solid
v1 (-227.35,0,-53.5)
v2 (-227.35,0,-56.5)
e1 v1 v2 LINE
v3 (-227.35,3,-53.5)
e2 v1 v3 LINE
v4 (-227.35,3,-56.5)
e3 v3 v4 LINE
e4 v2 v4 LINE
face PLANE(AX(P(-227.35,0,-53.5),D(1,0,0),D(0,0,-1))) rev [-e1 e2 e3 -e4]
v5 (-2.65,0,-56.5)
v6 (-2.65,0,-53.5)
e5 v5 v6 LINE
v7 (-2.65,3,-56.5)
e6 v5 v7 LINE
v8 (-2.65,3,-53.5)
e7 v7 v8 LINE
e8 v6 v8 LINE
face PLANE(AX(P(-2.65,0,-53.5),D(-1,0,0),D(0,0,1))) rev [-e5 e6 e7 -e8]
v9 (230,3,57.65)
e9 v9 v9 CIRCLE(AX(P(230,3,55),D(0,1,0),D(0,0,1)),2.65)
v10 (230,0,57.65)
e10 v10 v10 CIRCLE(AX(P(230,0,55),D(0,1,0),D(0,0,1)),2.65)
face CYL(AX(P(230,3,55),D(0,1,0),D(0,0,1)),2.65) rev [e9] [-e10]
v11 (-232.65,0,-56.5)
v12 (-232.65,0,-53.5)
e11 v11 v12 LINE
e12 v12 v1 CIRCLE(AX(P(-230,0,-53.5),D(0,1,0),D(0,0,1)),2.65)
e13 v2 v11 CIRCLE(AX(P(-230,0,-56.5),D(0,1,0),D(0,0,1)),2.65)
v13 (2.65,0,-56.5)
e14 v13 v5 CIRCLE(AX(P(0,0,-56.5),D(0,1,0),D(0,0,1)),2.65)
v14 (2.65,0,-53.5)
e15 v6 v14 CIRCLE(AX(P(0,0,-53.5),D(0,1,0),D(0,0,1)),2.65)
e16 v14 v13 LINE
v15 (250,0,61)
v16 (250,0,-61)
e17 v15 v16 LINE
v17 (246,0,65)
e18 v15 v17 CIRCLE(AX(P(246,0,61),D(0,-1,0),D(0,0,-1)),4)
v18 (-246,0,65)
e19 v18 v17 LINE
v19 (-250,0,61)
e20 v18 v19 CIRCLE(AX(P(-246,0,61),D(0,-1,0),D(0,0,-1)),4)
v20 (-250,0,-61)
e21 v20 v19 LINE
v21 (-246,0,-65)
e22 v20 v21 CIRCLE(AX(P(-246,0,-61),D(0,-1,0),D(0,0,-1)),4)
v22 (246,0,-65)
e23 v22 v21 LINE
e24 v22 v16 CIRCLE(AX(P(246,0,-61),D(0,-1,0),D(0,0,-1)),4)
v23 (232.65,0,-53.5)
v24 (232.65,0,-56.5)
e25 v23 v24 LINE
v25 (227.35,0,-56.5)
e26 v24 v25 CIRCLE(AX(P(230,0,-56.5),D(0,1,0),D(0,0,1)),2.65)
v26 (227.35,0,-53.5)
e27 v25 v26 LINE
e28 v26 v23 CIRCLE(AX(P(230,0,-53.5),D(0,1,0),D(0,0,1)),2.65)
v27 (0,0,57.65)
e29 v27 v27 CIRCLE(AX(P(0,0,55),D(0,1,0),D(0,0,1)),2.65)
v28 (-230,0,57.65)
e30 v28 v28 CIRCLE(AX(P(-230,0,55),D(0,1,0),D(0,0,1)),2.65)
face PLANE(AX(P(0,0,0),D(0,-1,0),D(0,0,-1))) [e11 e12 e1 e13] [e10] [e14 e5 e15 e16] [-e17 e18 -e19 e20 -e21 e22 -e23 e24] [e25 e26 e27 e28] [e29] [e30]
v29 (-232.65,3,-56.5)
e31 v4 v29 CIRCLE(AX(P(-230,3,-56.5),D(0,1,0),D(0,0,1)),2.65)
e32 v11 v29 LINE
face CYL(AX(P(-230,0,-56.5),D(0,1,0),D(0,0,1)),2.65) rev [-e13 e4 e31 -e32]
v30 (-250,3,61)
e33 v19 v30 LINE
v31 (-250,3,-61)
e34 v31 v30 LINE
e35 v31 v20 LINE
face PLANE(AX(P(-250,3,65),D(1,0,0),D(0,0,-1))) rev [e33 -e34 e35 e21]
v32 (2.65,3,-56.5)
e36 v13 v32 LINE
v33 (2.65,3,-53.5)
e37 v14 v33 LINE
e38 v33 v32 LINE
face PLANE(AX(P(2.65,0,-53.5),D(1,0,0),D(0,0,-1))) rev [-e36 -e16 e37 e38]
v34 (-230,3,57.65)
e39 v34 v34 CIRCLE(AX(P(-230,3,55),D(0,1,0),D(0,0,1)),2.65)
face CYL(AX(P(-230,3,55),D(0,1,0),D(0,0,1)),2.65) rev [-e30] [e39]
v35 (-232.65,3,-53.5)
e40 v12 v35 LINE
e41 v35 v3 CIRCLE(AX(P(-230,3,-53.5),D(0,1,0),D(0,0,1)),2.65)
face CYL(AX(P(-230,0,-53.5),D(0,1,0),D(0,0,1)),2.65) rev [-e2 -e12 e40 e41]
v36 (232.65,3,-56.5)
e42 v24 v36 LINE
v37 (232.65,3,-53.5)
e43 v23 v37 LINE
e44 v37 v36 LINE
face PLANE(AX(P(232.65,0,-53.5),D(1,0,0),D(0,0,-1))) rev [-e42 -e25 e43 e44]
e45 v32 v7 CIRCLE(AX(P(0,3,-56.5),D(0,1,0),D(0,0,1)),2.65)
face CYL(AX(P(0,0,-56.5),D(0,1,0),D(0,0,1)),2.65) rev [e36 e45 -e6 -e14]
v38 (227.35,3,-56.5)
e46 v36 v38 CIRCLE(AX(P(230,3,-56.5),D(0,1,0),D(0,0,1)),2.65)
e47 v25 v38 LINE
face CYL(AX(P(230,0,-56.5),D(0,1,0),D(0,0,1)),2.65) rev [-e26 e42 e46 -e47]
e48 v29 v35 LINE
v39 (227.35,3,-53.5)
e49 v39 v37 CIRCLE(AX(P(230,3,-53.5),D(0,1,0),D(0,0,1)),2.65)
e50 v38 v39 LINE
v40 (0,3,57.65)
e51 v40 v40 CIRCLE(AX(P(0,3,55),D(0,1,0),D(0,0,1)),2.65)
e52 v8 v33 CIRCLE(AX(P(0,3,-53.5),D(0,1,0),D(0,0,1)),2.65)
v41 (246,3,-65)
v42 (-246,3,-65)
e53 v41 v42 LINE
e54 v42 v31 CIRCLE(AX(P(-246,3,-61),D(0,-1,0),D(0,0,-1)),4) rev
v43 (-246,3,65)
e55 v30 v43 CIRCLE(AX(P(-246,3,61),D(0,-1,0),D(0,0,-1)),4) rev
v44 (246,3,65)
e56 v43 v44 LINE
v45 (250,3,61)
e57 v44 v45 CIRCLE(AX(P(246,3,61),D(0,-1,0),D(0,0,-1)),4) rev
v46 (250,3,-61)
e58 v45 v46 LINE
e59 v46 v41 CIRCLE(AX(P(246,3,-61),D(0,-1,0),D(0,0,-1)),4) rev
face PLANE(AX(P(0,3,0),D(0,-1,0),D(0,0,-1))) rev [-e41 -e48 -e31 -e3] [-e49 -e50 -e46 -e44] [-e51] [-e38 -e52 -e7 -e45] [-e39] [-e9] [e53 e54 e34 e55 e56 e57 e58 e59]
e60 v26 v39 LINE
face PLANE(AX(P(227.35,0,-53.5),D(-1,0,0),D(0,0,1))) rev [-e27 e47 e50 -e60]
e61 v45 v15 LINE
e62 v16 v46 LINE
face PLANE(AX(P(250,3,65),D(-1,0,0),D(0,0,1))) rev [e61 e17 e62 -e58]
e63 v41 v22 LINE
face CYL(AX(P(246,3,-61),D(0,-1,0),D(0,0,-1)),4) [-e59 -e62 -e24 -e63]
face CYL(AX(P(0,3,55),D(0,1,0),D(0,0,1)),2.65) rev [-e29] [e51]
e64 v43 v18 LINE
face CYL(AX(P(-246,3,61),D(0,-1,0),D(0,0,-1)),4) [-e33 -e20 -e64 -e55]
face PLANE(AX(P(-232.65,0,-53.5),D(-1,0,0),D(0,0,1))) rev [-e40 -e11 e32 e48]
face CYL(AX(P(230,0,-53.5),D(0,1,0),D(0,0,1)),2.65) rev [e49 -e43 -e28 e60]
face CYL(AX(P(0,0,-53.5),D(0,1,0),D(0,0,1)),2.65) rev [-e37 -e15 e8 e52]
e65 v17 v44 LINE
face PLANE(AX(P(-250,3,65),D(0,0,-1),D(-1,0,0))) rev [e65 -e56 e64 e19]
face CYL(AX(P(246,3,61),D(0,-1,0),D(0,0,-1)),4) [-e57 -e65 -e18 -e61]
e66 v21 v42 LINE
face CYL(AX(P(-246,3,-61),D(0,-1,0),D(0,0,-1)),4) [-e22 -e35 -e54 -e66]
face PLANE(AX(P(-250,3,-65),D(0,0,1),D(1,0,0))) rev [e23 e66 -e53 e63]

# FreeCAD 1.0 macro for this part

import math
import FreeCAD as App
import Part
import Sketcher
from FreeCAD import Vector


def edges_at(feature, points):
    """Names of the edges that pass closest to the given points."""
    edges = feature.Shape.Edges
    near = lambda p: min(range(len(edges)), key=lambda i: edges[i].distToShape(Part.Vertex(*p))[0])
    return sorted({f"Edge{near(p) + 1}" for p in points})


def add_polygon(sketch, points):
    """Adds a closed chain of lines whose ends are joined by coincident constraints."""
    first, n = sketch.GeometryCount, len(points)
    for a, b in zip(points, points[1:] + points[:1]):
        sketch.addGeometry(Part.LineSegment(App.Vector(*a, 0), App.Vector(*b, 0)), False)
    for i in range(n):
        sketch.addConstraint(Sketcher.Constraint("Coincident", first + i, 2, first + (i + 1) % n, 1))

doc = App.newDocument("Part")
body = doc.addObject("PartDesign::Body", "Body")

# Sketch on XZ plane
sketch1 = body.newObject("Sketcher::SketchObject", "Sketch")
sketch1.AttachmentSupport = (doc.getObject("XZ_Plane"), [""])
sketch1.MapMode = "FlatFace"
add_polygon(sketch1, [(-250, -65), (-250, 65), (250, 65), (250, -65)])  # lines 0-3
sketch1.addConstraint(Sketcher.Constraint("Vertical", 0))
sketch1.addConstraint(Sketcher.Constraint("Horizontal", 1))
sketch1.addConstraint(Sketcher.Constraint("Vertical", 2))
sketch1.addConstraint(Sketcher.Constraint("Horizontal", 3))
sketch1.addConstraint(Sketcher.Constraint("Symmetric", 0, 2, 2, 2, -1, 1))
sketch1.addConstraint(Sketcher.Constraint("DistanceX", 1, 1, 1, 2, 500.0))
sketch1.addConstraint(Sketcher.Constraint("DistanceY", 0, 1, 0, 2, 130.0))
pad1 = body.newObject("PartDesign::Pad", "Pad")
pad1.Profile = sketch1
pad1.Length = 3
pad1.Reversed = True
doc.recompute()

fillet = body.newObject("PartDesign::Fillet", "Fillet")
fillet.Base = (pad1, edges_at(pad1, [
    (250, 1.5, 65),
    (-250, 1.5, 65),
    (-250, 1.5, -65),
    (250, 1.5, -65),
]))
fillet.Radius = 4

# Sketch on XZ plane
sketch2 = body.newObject("Sketcher::SketchObject", "Sketch001")
sketch2.AttachmentSupport = (doc.getObject("XZ_Plane"), [""])
sketch2.MapMode = "FlatFace"
sketch2.AttachmentOffset = App.Placement(Vector(0, 0, -3), App.Rotation())
sketch2.addGeometry(Part.Circle(Vector(230, -55, 0), Vector(0, 0, 1), 2.6), False)
sketch2.addGeometry(Part.Circle(Vector(-230, 55, 0), Vector(0, 0, 1), 2.6), False)
sketch2.addGeometry(Part.Circle(Vector(-230, -55, 0), Vector(0, 0, 1), 2.6), False)
sketch2.addGeometry(Part.Circle(Vector(230, 55, 0), Vector(0, 0, 1), 2.6), False)
sketch2.addGeometry(Part.Circle(Vector(0, -55, 0), Vector(0, 0, 1), 2.6), False)
sketch2.addGeometry(Part.Circle(Vector(0, 55, 0), Vector(0, 0, 1), 2.6), False)
sketch2.addConstraint(Sketcher.Constraint("Equal", 0, 1))
sketch2.addConstraint(Sketcher.Constraint("Equal", 1, 2))
sketch2.addConstraint(Sketcher.Constraint("Equal", 2, 3))
sketch2.addConstraint(Sketcher.Constraint("Equal", 3, 4))
sketch2.addConstraint(Sketcher.Constraint("Equal", 4, 5))
sketch2.addConstraint(Sketcher.Constraint("Symmetric", 0, 3, 1, 3, -1, 1))
sketch2.addConstraint(Sketcher.Constraint("Symmetric", 2, 3, 3, 3, -1, 1))
sketch2.addConstraint(Sketcher.Constraint("Symmetric", 4, 3, 5, 3, -1, 1))
sketch2.addConstraint(Sketcher.Constraint("Symmetric", 0, 3, 2, 3, -2))
sketch2.addConstraint(Sketcher.Constraint("PointOnObject", 4, 3, -2))
sketch2.addConstraint(Sketcher.Constraint("Horizontal", 2, 3, 4, 3))
sketch2.addConstraint(Sketcher.Constraint("Diameter", 0, 5.3))
sketch2.addConstraint(Sketcher.Constraint("DistanceX", -1, 1, 0, 3, 230.0))
sketch2.addConstraint(Sketcher.Constraint("DistanceY", 0, 3, -1, 1, 55.0))
doc.recompute()
hole = body.newObject("PartDesign::Hole", "Hole")
hole.Profile = sketch2
hole.ThreadType = "None"
hole.Diameter = 5.3
hole.DepthType = "ThroughAll"
hole.Reversed = True

# Sketch on XZ plane
sketch3 = body.newObject("Sketcher::SketchObject", "Sketch002")
sketch3.AttachmentSupport = (doc.getObject("XZ_Plane"), [""])
sketch3.MapMode = "FlatFace"
sketch3.AttachmentOffset = App.Placement(Vector(0, 0, -3), App.Rotation())
sketch3.addGeometry(Part.LineSegment(Vector(-232.7, -56.5, 0), Vector(-232.7, -53.5, 0)), False)
sketch3.addGeometry(Part.ArcOfCircle(Part.Circle(Vector(-230, -53.5, 0), Vector(0, 0, 1), 2.6), math.radians(0), math.radians(180)), False)
sketch3.addGeometry(Part.LineSegment(Vector(-227.3, -53.5, 0), Vector(-227.3, -56.5, 0)), False)
sketch3.addGeometry(Part.ArcOfCircle(Part.Circle(Vector(-230, -56.5, 0), Vector(0, 0, 1), 2.6), math.radians(180), math.radians(360)), False)
sketch3.addGeometry(Part.LineSegment(Vector(-2.6, -56.5, 0), Vector(-2.6, -53.5, 0)), False)
sketch3.addGeometry(Part.ArcOfCircle(Part.Circle(Vector(0, -53.5, 0), Vector(0, 0, 1), 2.6), math.radians(0), math.radians(180)), False)
sketch3.addGeometry(Part.LineSegment(Vector(2.6, -53.5, 0), Vector(2.6, -56.5, 0)), False)
sketch3.addGeometry(Part.ArcOfCircle(Part.Circle(Vector(0, -56.5, 0), Vector(0, 0, 1), 2.6), math.radians(180), math.radians(360)), False)
sketch3.addGeometry(Part.LineSegment(Vector(227.3, -56.5, 0), Vector(227.3, -53.5, 0)), False)
sketch3.addGeometry(Part.ArcOfCircle(Part.Circle(Vector(230, -53.5, 0), Vector(0, 0, 1), 2.6), math.radians(0), math.radians(180)), False)
sketch3.addGeometry(Part.LineSegment(Vector(232.7, -53.5, 0), Vector(232.7, -56.5, 0)), False)
sketch3.addGeometry(Part.ArcOfCircle(Part.Circle(Vector(230, -56.5, 0), Vector(0, 0, 1), 2.6), math.radians(180), math.radians(360)), False)
sketch3.addConstraint(Sketcher.Constraint("Tangent", 0, 2, 1, 2))
sketch3.addConstraint(Sketcher.Constraint("Tangent", 1, 1, 2, 1))
sketch3.addConstraint(Sketcher.Constraint("Tangent", 2, 2, 3, 2))
sketch3.addConstraint(Sketcher.Constraint("Tangent", 3, 1, 0, 1))
sketch3.addConstraint(Sketcher.Constraint("Tangent", 4, 2, 5, 2))
sketch3.addConstraint(Sketcher.Constraint("Tangent", 5, 1, 6, 1))
sketch3.addConstraint(Sketcher.Constraint("Tangent", 6, 2, 7, 2))
sketch3.addConstraint(Sketcher.Constraint("Tangent", 7, 1, 4, 1))
sketch3.addConstraint(Sketcher.Constraint("Tangent", 8, 2, 9, 2))
sketch3.addConstraint(Sketcher.Constraint("Tangent", 9, 1, 10, 1))
sketch3.addConstraint(Sketcher.Constraint("Tangent", 10, 2, 11, 2))
sketch3.addConstraint(Sketcher.Constraint("Tangent", 11, 1, 8, 1))
sketch3.addConstraint(Sketcher.Constraint("Vertical", 0))
sketch3.addConstraint(Sketcher.Constraint("Vertical", 2))
sketch3.addConstraint(Sketcher.Constraint("Vertical", 4))
sketch3.addConstraint(Sketcher.Constraint("Vertical", 6))
sketch3.addConstraint(Sketcher.Constraint("Vertical", 8))
sketch3.addConstraint(Sketcher.Constraint("Vertical", 10))
sketch3.addConstraint(Sketcher.Constraint("Equal", 3, 5))
sketch3.addConstraint(Sketcher.Constraint("Equal", 7, 9))
sketch3.addConstraint(Sketcher.Constraint("Symmetric", 1, 3, 9, 3, -2))
sketch3.addConstraint(Sketcher.Constraint("PointOnObject", 5, 3, -2))
sketch3.addConstraint(Sketcher.Constraint("Horizontal", 1, 3, 5, 3))
sketch3.addConstraint(Sketcher.Constraint("Horizontal", 3, 3, 7, 3))
sketch3.addConstraint(Sketcher.Constraint("Horizontal", 7, 3, 11, 3))
sketch3.addConstraint(Sketcher.Constraint("DistanceY", 0, 1, 0, 2, 3.0))
sketch3.addConstraint(Sketcher.Constraint("Radius", 1, 2.65))
sketch3.addConstraint(Sketcher.Constraint("DistanceX", 1, 3, -1, 1, 230.0))
sketch3.addConstraint(Sketcher.Constraint("DistanceY", 1, 3, -1, 1, 53.5))
pocket1 = body.newObject("PartDesign::Pocket", "Pocket")
pocket1.Profile = sketch3
pocket1.Type = "ThroughAll"
pocket1.Reversed = True

doc.recompute()
